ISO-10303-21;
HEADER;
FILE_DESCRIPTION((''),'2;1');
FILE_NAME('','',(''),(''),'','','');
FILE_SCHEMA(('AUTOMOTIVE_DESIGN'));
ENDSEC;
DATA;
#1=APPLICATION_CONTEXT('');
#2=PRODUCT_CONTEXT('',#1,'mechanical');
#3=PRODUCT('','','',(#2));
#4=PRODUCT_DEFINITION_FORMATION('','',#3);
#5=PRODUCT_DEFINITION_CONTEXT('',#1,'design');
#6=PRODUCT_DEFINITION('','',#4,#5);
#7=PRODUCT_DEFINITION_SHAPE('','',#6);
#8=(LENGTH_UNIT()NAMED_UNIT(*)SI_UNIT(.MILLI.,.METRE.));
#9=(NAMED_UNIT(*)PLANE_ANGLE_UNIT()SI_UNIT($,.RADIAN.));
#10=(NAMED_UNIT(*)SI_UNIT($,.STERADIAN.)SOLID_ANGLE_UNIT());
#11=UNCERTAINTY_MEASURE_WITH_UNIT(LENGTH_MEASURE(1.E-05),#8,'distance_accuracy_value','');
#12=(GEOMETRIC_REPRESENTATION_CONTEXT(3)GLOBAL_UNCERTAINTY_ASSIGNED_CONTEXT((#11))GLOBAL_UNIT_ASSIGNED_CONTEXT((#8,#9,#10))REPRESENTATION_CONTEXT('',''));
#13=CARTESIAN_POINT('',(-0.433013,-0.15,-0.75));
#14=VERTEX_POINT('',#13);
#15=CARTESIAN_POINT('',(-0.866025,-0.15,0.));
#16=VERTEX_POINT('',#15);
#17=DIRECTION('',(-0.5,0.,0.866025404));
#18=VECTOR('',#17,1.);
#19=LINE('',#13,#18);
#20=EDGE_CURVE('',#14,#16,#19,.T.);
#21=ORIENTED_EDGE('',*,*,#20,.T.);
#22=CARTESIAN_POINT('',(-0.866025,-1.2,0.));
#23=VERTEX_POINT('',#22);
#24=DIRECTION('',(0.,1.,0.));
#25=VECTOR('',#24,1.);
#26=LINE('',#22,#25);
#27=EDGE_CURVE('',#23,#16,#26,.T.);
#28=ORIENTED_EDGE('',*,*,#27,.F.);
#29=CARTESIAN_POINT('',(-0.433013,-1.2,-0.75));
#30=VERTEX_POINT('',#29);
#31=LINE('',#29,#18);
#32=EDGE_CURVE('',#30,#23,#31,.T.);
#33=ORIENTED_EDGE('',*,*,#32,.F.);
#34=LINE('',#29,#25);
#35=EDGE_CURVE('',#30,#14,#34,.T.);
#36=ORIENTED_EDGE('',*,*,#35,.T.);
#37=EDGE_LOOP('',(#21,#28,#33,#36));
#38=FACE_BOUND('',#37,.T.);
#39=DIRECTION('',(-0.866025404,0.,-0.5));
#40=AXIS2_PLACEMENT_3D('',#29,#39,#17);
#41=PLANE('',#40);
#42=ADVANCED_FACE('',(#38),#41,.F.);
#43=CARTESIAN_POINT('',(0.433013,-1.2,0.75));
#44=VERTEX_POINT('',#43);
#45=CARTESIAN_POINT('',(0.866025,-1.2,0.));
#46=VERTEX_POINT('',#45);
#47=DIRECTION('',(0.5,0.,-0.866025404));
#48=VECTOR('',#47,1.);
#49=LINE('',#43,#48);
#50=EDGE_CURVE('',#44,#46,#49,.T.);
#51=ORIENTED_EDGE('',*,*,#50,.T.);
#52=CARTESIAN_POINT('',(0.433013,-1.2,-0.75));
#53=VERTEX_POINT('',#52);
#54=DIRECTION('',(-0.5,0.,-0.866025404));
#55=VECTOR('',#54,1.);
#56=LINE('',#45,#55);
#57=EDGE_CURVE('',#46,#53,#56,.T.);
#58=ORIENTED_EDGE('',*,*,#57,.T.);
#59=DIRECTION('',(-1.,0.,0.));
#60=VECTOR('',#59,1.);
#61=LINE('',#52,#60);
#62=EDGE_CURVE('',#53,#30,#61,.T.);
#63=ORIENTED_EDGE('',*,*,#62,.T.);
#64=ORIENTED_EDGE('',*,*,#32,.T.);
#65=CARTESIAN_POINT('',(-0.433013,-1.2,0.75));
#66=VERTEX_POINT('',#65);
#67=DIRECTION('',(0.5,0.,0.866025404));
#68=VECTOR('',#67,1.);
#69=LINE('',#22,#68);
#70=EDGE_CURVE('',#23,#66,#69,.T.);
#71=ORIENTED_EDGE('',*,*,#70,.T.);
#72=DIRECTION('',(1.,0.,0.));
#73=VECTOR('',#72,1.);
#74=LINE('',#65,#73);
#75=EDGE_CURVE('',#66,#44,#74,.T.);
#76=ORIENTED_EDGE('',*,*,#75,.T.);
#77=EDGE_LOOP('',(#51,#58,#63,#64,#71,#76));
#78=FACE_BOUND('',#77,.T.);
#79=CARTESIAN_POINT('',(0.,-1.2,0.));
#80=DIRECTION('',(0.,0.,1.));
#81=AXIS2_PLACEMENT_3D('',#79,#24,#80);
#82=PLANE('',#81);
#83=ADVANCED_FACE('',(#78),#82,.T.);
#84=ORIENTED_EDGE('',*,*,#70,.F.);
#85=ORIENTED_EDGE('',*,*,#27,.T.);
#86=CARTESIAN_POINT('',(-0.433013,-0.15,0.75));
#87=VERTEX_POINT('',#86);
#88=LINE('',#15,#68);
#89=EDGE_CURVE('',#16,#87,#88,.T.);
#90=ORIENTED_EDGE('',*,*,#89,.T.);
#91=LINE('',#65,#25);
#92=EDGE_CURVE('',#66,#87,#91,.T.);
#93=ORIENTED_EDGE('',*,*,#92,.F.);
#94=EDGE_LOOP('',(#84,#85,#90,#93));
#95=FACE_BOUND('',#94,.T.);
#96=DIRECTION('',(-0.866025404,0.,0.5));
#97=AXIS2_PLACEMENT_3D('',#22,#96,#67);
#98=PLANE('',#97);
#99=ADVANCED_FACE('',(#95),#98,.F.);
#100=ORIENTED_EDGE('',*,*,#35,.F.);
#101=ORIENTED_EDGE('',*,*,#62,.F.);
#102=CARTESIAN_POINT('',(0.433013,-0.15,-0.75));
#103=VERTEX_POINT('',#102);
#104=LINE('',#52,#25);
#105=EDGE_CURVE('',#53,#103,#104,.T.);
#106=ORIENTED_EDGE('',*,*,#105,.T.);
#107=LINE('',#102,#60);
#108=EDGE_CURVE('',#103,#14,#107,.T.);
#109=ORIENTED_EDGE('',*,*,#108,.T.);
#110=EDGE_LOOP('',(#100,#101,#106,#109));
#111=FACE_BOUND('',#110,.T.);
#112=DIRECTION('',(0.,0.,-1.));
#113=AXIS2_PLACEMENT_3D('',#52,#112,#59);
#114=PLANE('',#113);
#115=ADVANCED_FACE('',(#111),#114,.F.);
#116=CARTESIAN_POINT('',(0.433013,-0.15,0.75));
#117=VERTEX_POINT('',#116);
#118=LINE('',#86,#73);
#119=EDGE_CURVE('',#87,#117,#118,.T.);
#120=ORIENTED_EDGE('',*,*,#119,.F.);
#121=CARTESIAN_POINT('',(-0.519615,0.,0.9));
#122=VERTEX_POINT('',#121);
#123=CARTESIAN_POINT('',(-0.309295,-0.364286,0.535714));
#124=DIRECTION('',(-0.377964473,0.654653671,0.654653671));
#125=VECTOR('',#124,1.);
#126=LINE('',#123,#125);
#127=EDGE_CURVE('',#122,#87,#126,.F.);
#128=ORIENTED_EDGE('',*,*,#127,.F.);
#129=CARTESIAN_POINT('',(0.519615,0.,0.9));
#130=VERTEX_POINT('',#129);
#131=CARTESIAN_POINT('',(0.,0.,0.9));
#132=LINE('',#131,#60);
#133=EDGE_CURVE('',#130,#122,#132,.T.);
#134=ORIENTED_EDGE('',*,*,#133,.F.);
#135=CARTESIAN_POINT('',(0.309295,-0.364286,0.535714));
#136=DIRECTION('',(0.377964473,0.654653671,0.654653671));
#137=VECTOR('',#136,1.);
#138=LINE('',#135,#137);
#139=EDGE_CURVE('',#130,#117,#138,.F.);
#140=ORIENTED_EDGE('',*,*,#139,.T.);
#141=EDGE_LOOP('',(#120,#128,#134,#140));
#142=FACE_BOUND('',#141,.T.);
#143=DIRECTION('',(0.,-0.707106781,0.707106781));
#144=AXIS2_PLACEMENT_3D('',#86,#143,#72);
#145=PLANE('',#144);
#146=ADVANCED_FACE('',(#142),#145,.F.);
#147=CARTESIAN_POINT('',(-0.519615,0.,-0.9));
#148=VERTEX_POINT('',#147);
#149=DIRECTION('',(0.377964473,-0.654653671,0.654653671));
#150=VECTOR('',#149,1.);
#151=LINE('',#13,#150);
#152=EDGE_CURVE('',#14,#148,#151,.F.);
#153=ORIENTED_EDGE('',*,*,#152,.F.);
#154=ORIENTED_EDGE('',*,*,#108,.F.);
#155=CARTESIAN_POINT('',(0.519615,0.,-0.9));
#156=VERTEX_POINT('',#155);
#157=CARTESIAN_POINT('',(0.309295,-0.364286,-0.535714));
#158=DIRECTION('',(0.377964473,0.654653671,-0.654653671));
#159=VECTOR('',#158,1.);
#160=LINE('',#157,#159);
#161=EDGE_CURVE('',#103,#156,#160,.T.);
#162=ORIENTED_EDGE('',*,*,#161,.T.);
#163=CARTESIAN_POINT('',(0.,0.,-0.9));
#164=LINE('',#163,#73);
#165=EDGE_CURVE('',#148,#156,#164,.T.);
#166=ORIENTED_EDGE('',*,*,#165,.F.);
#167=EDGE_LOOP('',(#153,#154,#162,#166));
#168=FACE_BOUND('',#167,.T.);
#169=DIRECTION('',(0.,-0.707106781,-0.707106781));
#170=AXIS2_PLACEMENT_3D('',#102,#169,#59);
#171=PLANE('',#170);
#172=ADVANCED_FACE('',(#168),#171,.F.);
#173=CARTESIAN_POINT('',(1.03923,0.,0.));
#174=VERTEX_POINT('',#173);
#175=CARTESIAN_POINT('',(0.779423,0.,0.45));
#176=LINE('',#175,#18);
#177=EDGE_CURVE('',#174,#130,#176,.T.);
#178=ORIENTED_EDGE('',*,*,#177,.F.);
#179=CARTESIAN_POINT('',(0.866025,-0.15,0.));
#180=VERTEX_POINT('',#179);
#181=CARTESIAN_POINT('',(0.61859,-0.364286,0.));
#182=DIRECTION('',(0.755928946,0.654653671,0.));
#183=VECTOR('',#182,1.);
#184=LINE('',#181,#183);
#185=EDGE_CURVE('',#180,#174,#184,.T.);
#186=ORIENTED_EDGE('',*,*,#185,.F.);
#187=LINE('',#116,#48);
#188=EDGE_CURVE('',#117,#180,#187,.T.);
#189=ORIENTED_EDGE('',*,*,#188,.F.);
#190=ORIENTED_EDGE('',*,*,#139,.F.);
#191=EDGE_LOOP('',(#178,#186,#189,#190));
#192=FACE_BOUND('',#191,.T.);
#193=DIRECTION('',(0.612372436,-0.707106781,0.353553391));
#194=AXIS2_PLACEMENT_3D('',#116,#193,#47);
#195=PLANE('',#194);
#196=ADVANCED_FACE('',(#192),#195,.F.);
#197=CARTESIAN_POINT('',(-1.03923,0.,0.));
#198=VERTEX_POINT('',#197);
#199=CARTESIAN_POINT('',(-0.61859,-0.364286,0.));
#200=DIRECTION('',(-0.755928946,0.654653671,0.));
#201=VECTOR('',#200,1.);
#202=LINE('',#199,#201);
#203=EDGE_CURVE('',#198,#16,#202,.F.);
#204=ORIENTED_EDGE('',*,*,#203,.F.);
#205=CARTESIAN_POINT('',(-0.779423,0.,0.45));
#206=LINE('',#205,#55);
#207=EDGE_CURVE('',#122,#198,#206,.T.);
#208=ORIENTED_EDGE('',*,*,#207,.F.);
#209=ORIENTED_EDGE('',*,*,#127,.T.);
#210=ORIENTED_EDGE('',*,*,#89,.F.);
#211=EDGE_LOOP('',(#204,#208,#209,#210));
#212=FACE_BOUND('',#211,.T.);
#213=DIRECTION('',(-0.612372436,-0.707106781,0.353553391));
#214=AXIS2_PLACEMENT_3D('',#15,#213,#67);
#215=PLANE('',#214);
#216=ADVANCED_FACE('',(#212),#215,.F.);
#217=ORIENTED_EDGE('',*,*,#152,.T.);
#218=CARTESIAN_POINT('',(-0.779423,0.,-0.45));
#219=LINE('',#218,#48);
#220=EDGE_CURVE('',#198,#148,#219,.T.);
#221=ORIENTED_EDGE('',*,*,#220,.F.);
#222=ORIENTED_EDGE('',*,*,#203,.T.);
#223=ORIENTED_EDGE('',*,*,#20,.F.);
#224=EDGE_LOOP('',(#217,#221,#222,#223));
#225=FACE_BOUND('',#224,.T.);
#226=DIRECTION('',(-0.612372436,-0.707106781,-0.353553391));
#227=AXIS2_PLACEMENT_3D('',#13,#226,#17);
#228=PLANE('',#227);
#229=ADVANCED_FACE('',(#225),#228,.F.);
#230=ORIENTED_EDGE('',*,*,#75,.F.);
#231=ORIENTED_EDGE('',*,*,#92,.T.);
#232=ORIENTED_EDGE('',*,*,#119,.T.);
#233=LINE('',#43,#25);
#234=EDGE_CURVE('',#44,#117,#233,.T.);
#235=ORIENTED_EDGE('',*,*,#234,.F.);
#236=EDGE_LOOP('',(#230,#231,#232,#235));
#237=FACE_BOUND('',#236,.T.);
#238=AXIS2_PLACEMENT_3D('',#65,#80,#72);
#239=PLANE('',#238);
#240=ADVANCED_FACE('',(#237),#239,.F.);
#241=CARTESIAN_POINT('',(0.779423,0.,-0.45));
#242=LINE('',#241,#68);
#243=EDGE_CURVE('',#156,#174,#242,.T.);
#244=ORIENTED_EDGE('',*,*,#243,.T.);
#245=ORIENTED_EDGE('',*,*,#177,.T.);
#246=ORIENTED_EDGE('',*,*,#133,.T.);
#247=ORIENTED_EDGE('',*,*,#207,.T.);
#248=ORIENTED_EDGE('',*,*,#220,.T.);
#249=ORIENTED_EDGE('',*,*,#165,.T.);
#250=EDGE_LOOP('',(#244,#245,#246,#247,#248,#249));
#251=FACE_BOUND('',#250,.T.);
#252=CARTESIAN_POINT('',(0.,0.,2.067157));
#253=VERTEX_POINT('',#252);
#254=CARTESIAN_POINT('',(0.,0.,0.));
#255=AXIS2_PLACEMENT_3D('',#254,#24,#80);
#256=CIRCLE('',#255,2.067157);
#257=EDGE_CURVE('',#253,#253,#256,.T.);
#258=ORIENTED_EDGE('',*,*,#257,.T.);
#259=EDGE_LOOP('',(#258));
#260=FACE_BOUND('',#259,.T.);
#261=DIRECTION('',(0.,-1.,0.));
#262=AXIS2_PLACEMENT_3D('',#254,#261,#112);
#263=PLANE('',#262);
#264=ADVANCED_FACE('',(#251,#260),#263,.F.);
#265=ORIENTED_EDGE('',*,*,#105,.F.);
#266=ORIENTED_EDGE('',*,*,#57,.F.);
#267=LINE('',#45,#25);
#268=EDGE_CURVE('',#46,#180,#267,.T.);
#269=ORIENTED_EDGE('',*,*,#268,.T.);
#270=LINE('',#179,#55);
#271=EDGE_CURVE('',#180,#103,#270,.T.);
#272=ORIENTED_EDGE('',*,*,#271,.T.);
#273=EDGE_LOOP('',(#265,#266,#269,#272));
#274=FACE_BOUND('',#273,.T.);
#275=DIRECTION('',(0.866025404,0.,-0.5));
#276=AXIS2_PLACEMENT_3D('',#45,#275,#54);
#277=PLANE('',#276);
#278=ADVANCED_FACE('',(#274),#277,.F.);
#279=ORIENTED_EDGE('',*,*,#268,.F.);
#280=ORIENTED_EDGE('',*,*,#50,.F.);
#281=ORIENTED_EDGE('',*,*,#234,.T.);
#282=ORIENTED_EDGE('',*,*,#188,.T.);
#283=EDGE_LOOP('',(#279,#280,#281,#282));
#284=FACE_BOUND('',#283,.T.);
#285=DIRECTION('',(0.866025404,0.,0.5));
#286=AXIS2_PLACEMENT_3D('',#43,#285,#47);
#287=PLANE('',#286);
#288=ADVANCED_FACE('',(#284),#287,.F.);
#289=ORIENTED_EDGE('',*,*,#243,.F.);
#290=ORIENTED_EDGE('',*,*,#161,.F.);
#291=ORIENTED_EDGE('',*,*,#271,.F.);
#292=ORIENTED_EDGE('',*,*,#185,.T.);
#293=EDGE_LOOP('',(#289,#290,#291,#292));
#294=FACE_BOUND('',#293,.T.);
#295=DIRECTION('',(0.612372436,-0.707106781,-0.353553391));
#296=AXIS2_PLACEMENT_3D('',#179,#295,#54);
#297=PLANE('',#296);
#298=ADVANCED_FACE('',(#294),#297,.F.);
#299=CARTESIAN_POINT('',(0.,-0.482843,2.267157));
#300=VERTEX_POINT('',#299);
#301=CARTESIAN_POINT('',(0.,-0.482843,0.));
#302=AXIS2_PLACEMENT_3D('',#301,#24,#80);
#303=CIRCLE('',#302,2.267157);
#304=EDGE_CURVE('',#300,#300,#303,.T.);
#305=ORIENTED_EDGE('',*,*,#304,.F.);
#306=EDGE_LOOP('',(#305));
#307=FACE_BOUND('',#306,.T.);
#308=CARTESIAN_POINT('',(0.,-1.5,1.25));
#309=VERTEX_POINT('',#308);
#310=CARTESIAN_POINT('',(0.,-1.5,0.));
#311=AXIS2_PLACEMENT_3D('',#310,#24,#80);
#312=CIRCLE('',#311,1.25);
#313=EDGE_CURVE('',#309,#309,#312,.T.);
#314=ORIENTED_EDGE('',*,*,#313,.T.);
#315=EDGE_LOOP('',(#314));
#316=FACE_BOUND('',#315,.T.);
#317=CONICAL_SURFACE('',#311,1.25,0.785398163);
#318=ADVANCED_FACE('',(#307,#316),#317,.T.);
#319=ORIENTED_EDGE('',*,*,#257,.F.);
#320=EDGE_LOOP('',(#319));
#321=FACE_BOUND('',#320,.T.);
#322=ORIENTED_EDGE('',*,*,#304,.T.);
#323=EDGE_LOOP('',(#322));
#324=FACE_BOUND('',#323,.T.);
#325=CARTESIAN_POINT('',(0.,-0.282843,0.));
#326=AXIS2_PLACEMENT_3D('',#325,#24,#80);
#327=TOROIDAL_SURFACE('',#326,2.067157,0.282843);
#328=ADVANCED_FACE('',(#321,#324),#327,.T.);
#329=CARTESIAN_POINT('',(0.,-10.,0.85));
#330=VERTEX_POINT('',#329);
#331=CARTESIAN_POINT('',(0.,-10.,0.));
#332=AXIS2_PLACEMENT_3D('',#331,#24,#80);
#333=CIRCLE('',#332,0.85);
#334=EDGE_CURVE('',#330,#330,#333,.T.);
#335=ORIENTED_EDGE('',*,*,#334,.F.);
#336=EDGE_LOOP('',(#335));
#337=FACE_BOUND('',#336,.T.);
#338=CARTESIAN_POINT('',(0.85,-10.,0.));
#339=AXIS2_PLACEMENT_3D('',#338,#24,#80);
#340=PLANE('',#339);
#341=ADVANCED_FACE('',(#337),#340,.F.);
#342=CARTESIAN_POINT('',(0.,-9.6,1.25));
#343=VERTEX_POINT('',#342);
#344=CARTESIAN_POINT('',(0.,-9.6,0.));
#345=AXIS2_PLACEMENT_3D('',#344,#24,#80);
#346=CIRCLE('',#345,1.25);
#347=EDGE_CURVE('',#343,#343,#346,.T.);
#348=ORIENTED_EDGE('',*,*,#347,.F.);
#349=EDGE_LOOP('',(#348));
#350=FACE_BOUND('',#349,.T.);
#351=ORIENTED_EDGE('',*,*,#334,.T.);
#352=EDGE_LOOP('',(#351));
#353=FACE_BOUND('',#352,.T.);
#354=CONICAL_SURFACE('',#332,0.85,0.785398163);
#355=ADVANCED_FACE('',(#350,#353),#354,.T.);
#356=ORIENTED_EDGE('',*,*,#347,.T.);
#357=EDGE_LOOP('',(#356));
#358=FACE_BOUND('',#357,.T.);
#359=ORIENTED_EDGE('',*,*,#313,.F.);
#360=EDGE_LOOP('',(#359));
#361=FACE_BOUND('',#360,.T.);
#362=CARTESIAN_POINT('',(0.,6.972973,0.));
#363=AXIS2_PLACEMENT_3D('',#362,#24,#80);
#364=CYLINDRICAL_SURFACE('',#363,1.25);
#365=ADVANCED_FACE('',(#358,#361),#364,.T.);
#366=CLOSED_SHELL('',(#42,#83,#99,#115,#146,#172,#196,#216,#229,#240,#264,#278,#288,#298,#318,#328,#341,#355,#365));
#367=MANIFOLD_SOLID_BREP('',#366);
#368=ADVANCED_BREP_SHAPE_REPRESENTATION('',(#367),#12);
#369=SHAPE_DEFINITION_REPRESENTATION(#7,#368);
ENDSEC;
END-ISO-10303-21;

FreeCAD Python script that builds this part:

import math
import FreeCAD as App
import Part
import Sketcher

V = App.Vector
Q = App.Units.Quantity


def edges_at(feature, points):
    """Names of the edges that pass closest to the given points."""
    edges = feature.Shape.Edges
    near = lambda p: min(range(len(edges)), key=lambda i: edges[i].distToShape(Part.Vertex(*p))[0])
    return sorted({f"Edge{near(p) + 1}" for p in points})


def add_polygon(sketch, points):
    """Adds a closed chain of lines whose ends are joined by coincident constraints."""
    first, n = sketch.GeometryCount, len(points)
    for a, b in zip(points, points[1:] + points[:1]):
        sketch.addGeometry(Part.LineSegment(App.Vector(*a, 0), App.Vector(*b, 0)), False)
    for i in range(n):
        sketch.addConstraint(Sketcher.Constraint("Coincident", first + i, 2, first + (i + 1) % n, 1))

doc = App.newDocument("Part")
body = doc.addObject("PartDesign::Body", "Body")

sketch1 = body.newObject("Sketcher::SketchObject", "Sketch")
sketch1.AttachmentSupport = (doc.getObject("XY_Plane"), [""])
sketch1.MapMode = "FlatFace"
sketch1.addGeometry([
    Part.LineSegment(V(0.85, -10, 0), V(1.25, -9.6, 0)),
    Part.LineSegment(V(1.25, -9.6, 0), V(1.25, -1.5, 0)),
    Part.LineSegment(V(1.25, -1.5, 0), V(2.267157, -0.482843, 0)),
    Part.ArcOfCircle(Part.Circle(V(2.067157, -0.282843, 0), V(0, 0, 1), 0.282843), math.radians(-45), math.radians(90)),
    Part.LineSegment(V(2.067157, 0, 0), V(0, 0, 0)),
    Part.LineSegment(V(0, 0, 0), V(0, -10, 0)),
    Part.LineSegment(V(0, -10, 0), V(0.85, -10, 0)),
], False)
sketch1.addConstraint([
    Sketcher.Constraint("Coincident", 0, 2, 1, 1),
    Sketcher.Constraint("Coincident", 1, 2, 2, 1),
    Sketcher.Constraint("Tangent", 2, 2, 3, 1),
    Sketcher.Constraint("Tangent", 3, 2, 4, 1),
    Sketcher.Constraint("Coincident", 4, 2, 5, 1),
    Sketcher.Constraint("Coincident", 5, 2, 6, 1),
    Sketcher.Constraint("Coincident", 6, 2, 0, 1),
    Sketcher.Constraint("Vertical", 1),
    Sketcher.Constraint("Horizontal", 4),
    Sketcher.Constraint("Vertical", 5),
    Sketcher.Constraint("Horizontal", 6),
    Sketcher.Constraint("Coincident", 4, 2, -1, 1),
    Sketcher.Constraint("Parallel", 0, 2),
    Sketcher.Constraint("DistanceY", 5, 2, 5, 1, Q("10 mm")),
    Sketcher.Constraint("Angle", 0, Q("45 deg")),
    Sketcher.Constraint("DistanceY", 1, 1, 1, 2, Q("8.1 mm")),
    Sketcher.Constraint("DistanceX", 6, 1, 6, 2, Q("0.85 mm")),
    Sketcher.Constraint("DistanceY", 0, 2, -1, 1, Q("9.6 mm")),
    Sketcher.Constraint("DistanceX", 3, 3, 2, 2, Q("0.2 mm")),
])
revolution = body.newObject("PartDesign::Revolution", "Revolution")
revolution.Profile = sketch1
revolution.ReferenceAxis = (sketch1, ["V_Axis"])
revolution.Angle = 360

sketch2 = body.newObject("Sketcher::SketchObject", "Sketch001")
sketch2.AttachmentSupport = (doc.getObject("XZ_Plane"), [""])
sketch2.MapMode = "FlatFace"
add_polygon(sketch2, [(-0.866025, 0), (-0.433013, 0.75), (0.433013, 0.75), (0.866025, 0), (0.433013, -0.75), (-0.433013, -0.75)])
sketch2.addConstraint([
    Sketcher.Constraint("Horizontal", 1),
    Sketcher.Constraint("Horizontal", 4),
    Sketcher.Constraint("Symmetric", 0, 2, 3, 2, -1, 1),
    Sketcher.Constraint("Symmetric", 2, 2, 5, 2, -1, 1),
    Sketcher.Constraint("PointOnObject", 2, 2, -1),
    Sketcher.Constraint("Parallel", 2, 5),
    Sketcher.Constraint("Vertical", 1, 2, 3, 2),
    Sketcher.Constraint("Angle", 0, Q("60 deg")),
    Sketcher.Constraint("DistanceY", 3, 2, 1, 2, Q("1.5 mm")),
    Sketcher.Constraint("DistanceX", 1, 1, 1, 2, Q("0.866025 mm")),
])
pocket1 = body.newObject("PartDesign::Pocket", "Pocket")
pocket1.Profile = sketch2
pocket1.Length = 1.2
pocket1.Reversed = True
doc.recompute()

chamfer = body.newObject("PartDesign::Chamfer", "Chamfer")
chamfer.Base = (pocket1, edges_at(pocket1, [
    (-0.65, 0, -0.375),
    (-0.65, 0, 0.375),
    (0, 0, 0.75),
    (0.65, 0, 0.375),
    (0.65, 0, -0.375),
    (0, 0, -0.75),
]))
chamfer.Size = 0.15

doc.recompute()
